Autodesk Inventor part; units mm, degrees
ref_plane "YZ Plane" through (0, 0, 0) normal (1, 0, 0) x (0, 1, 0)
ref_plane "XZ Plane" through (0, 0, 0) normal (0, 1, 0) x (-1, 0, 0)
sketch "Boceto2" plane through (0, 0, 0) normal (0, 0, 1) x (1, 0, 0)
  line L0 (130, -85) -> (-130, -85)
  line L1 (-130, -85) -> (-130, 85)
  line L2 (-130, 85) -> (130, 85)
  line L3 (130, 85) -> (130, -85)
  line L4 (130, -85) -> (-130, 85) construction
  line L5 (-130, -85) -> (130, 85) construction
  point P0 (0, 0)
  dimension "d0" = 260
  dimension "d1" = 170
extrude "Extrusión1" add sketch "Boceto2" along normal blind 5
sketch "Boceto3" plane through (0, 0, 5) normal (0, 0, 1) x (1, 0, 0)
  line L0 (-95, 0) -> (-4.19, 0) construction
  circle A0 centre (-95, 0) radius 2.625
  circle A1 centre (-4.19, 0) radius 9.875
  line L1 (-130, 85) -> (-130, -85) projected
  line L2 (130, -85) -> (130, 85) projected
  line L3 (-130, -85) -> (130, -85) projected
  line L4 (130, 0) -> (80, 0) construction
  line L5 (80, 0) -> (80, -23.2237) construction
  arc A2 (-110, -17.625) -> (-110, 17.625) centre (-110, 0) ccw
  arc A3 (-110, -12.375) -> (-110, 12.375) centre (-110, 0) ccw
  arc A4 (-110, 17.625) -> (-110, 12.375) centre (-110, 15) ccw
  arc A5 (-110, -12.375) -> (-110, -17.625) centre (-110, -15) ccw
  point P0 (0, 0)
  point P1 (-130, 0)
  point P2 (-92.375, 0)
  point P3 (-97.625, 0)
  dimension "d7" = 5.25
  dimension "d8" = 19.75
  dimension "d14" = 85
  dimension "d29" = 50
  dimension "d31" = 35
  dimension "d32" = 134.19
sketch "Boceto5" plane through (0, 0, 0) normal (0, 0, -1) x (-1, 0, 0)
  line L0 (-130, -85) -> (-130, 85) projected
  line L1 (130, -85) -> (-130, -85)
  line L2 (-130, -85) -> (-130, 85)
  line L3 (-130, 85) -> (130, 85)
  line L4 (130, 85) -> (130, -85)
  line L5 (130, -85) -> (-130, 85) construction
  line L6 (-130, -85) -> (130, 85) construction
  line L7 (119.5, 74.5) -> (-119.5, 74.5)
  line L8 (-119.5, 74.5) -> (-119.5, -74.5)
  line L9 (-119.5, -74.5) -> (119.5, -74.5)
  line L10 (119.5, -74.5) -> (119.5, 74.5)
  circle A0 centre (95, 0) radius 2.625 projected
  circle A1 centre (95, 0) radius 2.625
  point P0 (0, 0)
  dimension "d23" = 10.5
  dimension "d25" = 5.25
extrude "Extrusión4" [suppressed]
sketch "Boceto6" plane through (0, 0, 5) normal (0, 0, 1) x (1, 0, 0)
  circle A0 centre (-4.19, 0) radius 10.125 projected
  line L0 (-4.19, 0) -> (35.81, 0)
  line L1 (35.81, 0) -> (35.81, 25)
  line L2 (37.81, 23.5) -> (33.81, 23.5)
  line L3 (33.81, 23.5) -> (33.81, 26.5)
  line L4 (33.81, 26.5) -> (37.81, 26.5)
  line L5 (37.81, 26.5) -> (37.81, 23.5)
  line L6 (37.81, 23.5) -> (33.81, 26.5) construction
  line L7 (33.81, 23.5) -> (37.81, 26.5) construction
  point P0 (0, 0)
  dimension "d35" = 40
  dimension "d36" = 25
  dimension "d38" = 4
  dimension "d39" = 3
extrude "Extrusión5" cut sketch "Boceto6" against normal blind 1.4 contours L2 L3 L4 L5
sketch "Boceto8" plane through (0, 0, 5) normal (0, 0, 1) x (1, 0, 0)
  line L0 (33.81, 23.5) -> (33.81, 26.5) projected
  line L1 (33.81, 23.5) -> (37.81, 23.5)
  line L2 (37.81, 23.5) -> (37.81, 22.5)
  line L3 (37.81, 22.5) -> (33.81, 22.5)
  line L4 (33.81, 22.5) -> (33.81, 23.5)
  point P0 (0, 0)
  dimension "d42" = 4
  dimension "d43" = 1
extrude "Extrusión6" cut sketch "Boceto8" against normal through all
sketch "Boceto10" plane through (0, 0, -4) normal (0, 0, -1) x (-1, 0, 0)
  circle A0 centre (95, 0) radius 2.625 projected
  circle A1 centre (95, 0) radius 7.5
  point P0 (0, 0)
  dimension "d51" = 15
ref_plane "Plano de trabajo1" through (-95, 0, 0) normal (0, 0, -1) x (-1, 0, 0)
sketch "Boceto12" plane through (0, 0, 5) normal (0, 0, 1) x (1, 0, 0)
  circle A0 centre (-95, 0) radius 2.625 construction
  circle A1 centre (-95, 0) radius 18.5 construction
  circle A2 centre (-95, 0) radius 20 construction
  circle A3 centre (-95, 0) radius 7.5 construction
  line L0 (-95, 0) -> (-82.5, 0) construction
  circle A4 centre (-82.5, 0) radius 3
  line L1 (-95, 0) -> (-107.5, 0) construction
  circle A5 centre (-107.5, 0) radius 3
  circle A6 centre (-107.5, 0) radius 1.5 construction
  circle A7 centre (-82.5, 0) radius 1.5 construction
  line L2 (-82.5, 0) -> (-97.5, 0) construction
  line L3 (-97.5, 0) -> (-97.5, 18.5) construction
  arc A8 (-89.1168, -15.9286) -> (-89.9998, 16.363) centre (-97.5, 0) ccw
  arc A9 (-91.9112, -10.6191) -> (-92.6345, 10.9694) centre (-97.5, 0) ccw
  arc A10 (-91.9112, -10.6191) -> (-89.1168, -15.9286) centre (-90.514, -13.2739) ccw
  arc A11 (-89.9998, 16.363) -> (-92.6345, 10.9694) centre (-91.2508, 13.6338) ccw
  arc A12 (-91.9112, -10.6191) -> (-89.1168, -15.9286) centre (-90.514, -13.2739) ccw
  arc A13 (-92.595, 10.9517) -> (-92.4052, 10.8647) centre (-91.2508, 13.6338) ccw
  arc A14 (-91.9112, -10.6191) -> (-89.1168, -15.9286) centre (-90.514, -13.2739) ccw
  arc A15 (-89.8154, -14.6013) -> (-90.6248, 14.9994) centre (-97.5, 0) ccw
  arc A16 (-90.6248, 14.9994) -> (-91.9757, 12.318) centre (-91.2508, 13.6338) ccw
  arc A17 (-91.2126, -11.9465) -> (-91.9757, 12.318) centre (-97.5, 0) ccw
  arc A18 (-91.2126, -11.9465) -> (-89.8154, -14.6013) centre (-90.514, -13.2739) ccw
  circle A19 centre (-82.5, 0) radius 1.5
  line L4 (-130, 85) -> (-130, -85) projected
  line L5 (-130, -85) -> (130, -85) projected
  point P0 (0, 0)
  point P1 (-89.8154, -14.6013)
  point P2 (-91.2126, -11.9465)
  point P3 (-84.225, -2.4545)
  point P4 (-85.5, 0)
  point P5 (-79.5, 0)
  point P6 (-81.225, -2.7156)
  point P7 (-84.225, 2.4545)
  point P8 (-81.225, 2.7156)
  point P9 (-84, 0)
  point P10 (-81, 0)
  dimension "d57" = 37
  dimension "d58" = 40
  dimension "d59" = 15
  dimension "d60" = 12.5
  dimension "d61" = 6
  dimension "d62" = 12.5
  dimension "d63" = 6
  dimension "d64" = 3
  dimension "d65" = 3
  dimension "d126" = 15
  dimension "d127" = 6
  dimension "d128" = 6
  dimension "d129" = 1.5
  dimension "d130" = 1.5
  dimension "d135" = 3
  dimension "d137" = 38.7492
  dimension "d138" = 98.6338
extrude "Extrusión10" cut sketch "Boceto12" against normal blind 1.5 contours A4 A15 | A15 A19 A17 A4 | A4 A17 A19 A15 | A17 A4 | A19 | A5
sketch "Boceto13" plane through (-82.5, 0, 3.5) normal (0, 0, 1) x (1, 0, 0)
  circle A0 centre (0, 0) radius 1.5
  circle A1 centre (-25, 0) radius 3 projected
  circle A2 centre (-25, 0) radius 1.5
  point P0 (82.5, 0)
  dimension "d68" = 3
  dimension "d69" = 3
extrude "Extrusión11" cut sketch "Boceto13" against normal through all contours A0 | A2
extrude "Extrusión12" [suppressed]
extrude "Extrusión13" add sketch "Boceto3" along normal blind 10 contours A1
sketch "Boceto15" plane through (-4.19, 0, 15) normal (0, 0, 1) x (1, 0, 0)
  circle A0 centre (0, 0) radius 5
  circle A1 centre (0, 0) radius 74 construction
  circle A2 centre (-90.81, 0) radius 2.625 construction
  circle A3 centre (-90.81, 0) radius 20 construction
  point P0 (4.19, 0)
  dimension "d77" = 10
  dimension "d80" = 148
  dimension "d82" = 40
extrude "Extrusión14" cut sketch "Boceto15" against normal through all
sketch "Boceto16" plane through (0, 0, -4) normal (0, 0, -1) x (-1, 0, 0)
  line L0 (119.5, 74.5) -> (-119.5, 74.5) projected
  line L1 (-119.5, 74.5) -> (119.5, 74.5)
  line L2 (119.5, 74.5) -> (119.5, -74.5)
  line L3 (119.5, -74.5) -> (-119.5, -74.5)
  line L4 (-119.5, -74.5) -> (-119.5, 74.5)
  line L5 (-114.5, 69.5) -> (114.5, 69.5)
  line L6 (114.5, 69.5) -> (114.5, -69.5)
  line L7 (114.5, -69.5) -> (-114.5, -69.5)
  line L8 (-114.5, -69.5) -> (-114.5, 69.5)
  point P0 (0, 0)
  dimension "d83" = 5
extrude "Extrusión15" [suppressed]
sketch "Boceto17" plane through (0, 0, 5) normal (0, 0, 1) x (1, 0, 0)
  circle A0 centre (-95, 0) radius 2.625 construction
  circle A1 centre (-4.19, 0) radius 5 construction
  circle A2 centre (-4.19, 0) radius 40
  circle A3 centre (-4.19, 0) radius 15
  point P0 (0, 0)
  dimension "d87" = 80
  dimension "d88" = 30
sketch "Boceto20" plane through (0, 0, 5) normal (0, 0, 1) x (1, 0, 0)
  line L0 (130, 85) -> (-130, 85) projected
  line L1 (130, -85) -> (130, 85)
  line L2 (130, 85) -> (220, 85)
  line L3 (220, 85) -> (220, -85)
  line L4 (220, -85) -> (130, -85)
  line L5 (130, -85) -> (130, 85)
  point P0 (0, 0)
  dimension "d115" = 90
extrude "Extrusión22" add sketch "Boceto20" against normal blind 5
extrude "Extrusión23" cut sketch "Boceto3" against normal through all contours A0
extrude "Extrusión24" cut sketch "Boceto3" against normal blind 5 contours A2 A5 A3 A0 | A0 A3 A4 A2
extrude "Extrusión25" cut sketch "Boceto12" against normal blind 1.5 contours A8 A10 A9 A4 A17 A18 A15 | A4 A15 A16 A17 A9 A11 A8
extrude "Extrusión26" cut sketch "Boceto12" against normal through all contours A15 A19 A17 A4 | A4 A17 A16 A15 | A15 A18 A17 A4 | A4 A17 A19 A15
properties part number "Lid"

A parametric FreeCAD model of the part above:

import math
import FreeCAD as App
import Part
import Sketcher
from FreeCAD import Vector
Q = App.Units.Quantity


def add_polygon(sketch, points):
    """Adds a closed chain of lines whose ends are joined by coincident constraints."""
    first, n = sketch.GeometryCount, len(points)
    for a, b in zip(points, points[1:] + points[:1]):
        sketch.addGeometry(Part.LineSegment(App.Vector(*a, 0), App.Vector(*b, 0)), False)
    for i in range(n):
        sketch.addConstraint(Sketcher.Constraint("Coincident", first + i, 2, first + (i + 1) % n, 1))

doc = App.newDocument("Part")
params = doc.addObject("Spreadsheet::Sheet", "Params")
for row, (alias, value) in enumerate([
    ("sketch1_width", "260 mm"),
    ("sketch1_height", "170 mm"),
    ("pad1_length", "5 mm"),
    ("sketch2_width", "4 mm"),
    ("sketch2_height", "3 mm"),
    ("pocket1_length", "1.4 mm"),
    ("sketch3_width", "4 mm"),
    ("sketch3_height", "1 mm"),
    ("sketch4_diameter", "6 mm"),
    ("pocket3_length", "1.5 mm"),
    ("sketch5_diameter", "3 mm"),
    ("sketch6_diameter", "19.75 mm"),
    ("pad2_length", "10 mm"),
    ("sketch7_diameter", "10 mm"),
    ("sketch8_width", "90 mm"),
    ("sketch8_height", "170 mm"),
    ("pad3_length", "5 mm"),
    ("sketch9_diameter", "5.25 mm"),
    ("pocket7_length", "5 mm"),
    ("sketch11_radius", "3 mm"),
    ("sketch11_radius2", "1.5 mm"),
    ("sketch11_radius3", "18 mm"),
    ("pocket8_length", "1.5 mm"),
    ("sketch12_radius", "1.5 mm"),
    ("pocket9_length", "6.0024 mm"),
], start=1):
    params.set(f"A{row}", alias)
    params.set(f"B{row}", "=" + value)
    params.setAlias(f"B{row}", alias)

body = doc.addObject("PartDesign::Body", "Body")

sketch1 = body.newObject("Sketcher::SketchObject", "Sketch")
sketch1.AttachmentSupport = (doc.getObject("XY_Plane"), [""])
sketch1.MapMode = "FlatFace"
add_polygon(sketch1, [(-130, -85), (130, -85), (130, 85), (-130, 85)])
sketch1.addConstraint([
    Sketcher.Constraint("Horizontal", 0),
    Sketcher.Constraint("Vertical", 1),
    Sketcher.Constraint("Horizontal", 2),
    Sketcher.Constraint("Vertical", 3),
    Sketcher.Constraint("Symmetric", 0, 2, 2, 2, -1, 1),
    Sketcher.Constraint("DistanceX", 0, 1, 0, 2, Q("260 mm")),
    Sketcher.Constraint("DistanceY", 1, 1, 1, 2, Q("170 mm")),
])
sketch1.setExpression("Constraints[9]", "Params.sketch1_width")
sketch1.setExpression("Constraints[10]", "Params.sketch1_height")
pad1 = body.newObject("PartDesign::Pad", "Pad")
pad1.Profile = sketch1
pad1.setExpression("Length", "Params.pad1_length")

sketch2 = body.newObject("Sketcher::SketchObject", "Sketch001")
sketch2.AttachmentSupport = (doc.getObject("XY_Plane"), [""])
sketch2.MapMode = "FlatFace"
sketch2.AttachmentOffset = App.Placement(Vector(0, 0, 5), App.Rotation())
add_polygon(sketch2, [(33.8, 23.5), (37.8, 23.5), (37.8, 26.5), (33.8, 26.5)])
sketch2.addConstraint([
    Sketcher.Constraint("Horizontal", 0),
    Sketcher.Constraint("Vertical", 1),
    Sketcher.Constraint("Horizontal", 2),
    Sketcher.Constraint("Vertical", 3),
    Sketcher.Constraint("DistanceX", 0, 1, 0, 2, Q("4 mm")),
    Sketcher.Constraint("DistanceY", 1, 1, 1, 2, Q("3 mm")),
    Sketcher.Constraint("DistanceY", -1, 1, 0, 2, Q("23.5 mm")),
    Sketcher.Constraint("DistanceX", -1, 1, 0, 2, Q("37.81 mm")),
])
sketch2.setExpression("Constraints[8]", "Params.sketch2_width")
sketch2.setExpression("Constraints[9]", "Params.sketch2_height")
pocket1 = body.newObject("PartDesign::Pocket", "Pocket")
pocket1.Profile = sketch2
pocket1.setExpression("Length", "Params.pocket1_length")

sketch3 = body.newObject("Sketcher::SketchObject", "Sketch002")
sketch3.AttachmentSupport = (doc.getObject("XY_Plane"), [""])
sketch3.MapMode = "FlatFace"
sketch3.AttachmentOffset = App.Placement(Vector(0, 0, 5), App.Rotation())
add_polygon(sketch3, [(37.8, 23.5), (33.8, 23.5), (33.8, 22.5), (37.8, 22.5)])
sketch3.addConstraint([
    Sketcher.Constraint("Horizontal", 0),
    Sketcher.Constraint("Vertical", 1),
    Sketcher.Constraint("Horizontal", 2),
    Sketcher.Constraint("Vertical", 3),
    Sketcher.Constraint("DistanceX", 0, 2, 0, 1, Q("4 mm")),
    Sketcher.Constraint("DistanceY", 1, 2, 1, 1, Q("1 mm")),
    Sketcher.Constraint("DistanceY", -1, 1, 0, 2, Q("23.5 mm")),
    Sketcher.Constraint("DistanceX", -1, 1, 0, 2, Q("33.81 mm")),
])
sketch3.setExpression("Constraints[8]", "Params.sketch3_width")
sketch3.setExpression("Constraints[9]", "Params.sketch3_height")
pocket2 = body.newObject("PartDesign::Pocket", "Pocket001")
pocket2.Profile = sketch3
pocket2.Type = "ThroughAll"

sketch4 = body.newObject("Sketcher::SketchObject", "Sketch003")
sketch4.AttachmentSupport = (doc.getObject("XY_Plane"), [""])
sketch4.MapMode = "FlatFace"
sketch4.AttachmentOffset = App.Placement(Vector(0, 0, 5), App.Rotation())
sketch4.addGeometry([
    Part.Circle(Vector(-82.5, 0, 0), Vector(0, 0, 1), 3),
    Part.Circle(Vector(-107.5, 0, 0), Vector(0, 0, 1), 3),
], False)
sketch4.addConstraint([
    Sketcher.Constraint("Equal", 0, 1),
    Sketcher.Constraint("PointOnObject", 0, 3, -1),
    Sketcher.Constraint("PointOnObject", 1, 3, -1),
    Sketcher.Constraint("Diameter", 0, Q("6 mm")),
    Sketcher.Constraint("DistanceX", 1, 3, 0, 3, Q("25 mm")),
    Sketcher.Constraint("DistanceX", 0, 3, -1, 1, Q("82.5 mm")),
])
sketch4.setExpression("Constraints[3]", "Params.sketch4_diameter")
pocket3 = body.newObject("PartDesign::Pocket", "Pocket002")
pocket3.Profile = sketch4
pocket3.setExpression("Length", "Params.pocket3_length")

sketch5 = body.newObject("Sketcher::SketchObject", "Sketch004")
sketch5.AttachmentSupport = (doc.getObject("XY_Plane"), [""])
sketch5.MapMode = "FlatFace"
sketch5.AttachmentOffset = App.Placement(Vector(0, 0, 3.5), App.Rotation())
sketch5.addGeometry([
    Part.Circle(Vector(-82.5, 0, 0), Vector(0, 0, 1), 1.5),
    Part.Circle(Vector(-107.5, 0, 0), Vector(0, 0, 1), 1.5),
], False)
sketch5.addConstraint([
    Sketcher.Constraint("Equal", 0, 1),
    Sketcher.Constraint("PointOnObject", 0, 3, -1),
    Sketcher.Constraint("PointOnObject", 1, 3, -1),
    Sketcher.Constraint("Diameter", 0, Q("3 mm")),
    Sketcher.Constraint("DistanceX", 1, 3, 0, 3, Q("25 mm")),
    Sketcher.Constraint("DistanceX", 0, 3, -1, 1, Q("82.5 mm")),
])
sketch5.setExpression("Constraints[3]", "Params.sketch5_diameter")
pocket4 = body.newObject("PartDesign::Pocket", "Pocket003")
pocket4.Profile = sketch5
pocket4.Type = "ThroughAll"

sketch6 = body.newObject("Sketcher::SketchObject", "Sketch005")
sketch6.AttachmentSupport = (doc.getObject("XY_Plane"), [""])
sketch6.MapMode = "FlatFace"
sketch6.AttachmentOffset = App.Placement(Vector(0, 0, 5), App.Rotation())
sketch6.addGeometry(Part.Circle(Vector(-4, 0, 0), Vector(0, 0, 1), 10), False)
sketch6.addConstraint([
    Sketcher.Constraint("PointOnObject", 0, 3, -1),
    Sketcher.Constraint("Diameter", 0, Q("19.75 mm")),
    Sketcher.Constraint("DistanceX", 0, 3, -1, 1, Q("4.19 mm")),
])
sketch6.setExpression("Constraints[1]", "Params.sketch6_diameter")
pad2 = body.newObject("PartDesign::Pad", "Pad001")
pad2.Profile = sketch6
pad2.setExpression("Length", "Params.pad2_length")

sketch7 = body.newObject("Sketcher::SketchObject", "Sketch006")
sketch7.AttachmentSupport = (doc.getObject("XY_Plane"), [""])
sketch7.MapMode = "FlatFace"
sketch7.AttachmentOffset = App.Placement(Vector(0, 0, 15), App.Rotation())
sketch7.addGeometry(Part.Circle(Vector(-4, 0, 0), Vector(0, 0, 1), 5), False)
sketch7.addConstraint([
    Sketcher.Constraint("PointOnObject", 0, 3, -1),
    Sketcher.Constraint("Diameter", 0, Q("10 mm")),
    Sketcher.Constraint("DistanceX", 0, 3, -1, 1, Q("4.19 mm")),
])
sketch7.setExpression("Constraints[1]", "Params.sketch7_diameter")
pocket5 = body.newObject("PartDesign::Pocket", "Pocket004")
pocket5.Profile = sketch7
pocket5.Type = "ThroughAll"

sketch8 = body.newObject("Sketcher::SketchObject", "Sketch007")
sketch8.AttachmentSupport = (doc.getObject("XY_Plane"), [""])
sketch8.MapMode = "FlatFace"
sketch8.AttachmentOffset = App.Placement(Vector(0, 0, 5), App.Rotation())
add_polygon(sketch8, [(130, 85), (130, -85), (220, -85), (220, 85)])
sketch8.addConstraint([
    Sketcher.Constraint("Vertical", 0),
    Sketcher.Constraint("Horizontal", 1),
    Sketcher.Constraint("Vertical", 2),
    Sketcher.Constraint("Horizontal", 3),
    Sketcher.Constraint("DistanceX", 1, 1, 1, 2, Q("90 mm")),
    Sketcher.Constraint("DistanceY", 0, 2, 0, 1, Q("170 mm")),
    Sketcher.Constraint("DistanceX", -1, 1, 0, 2, Q("130 mm")),
    Sketcher.Constraint("DistanceY", 0, 2, -1, 1, Q("85 mm")),
])
sketch8.setExpression("Constraints[8]", "Params.sketch8_width")
sketch8.setExpression("Constraints[9]", "Params.sketch8_height")
pad3 = body.newObject("PartDesign::Pad", "Pad002")
pad3.Profile = sketch8
pad3.setExpression("Length", "Params.pad3_length")
pad3.Reversed = True

sketch9 = body.newObject("Sketcher::SketchObject", "Sketch008")
sketch9.AttachmentSupport = (doc.getObject("XY_Plane"), [""])
sketch9.MapMode = "FlatFace"
sketch9.AttachmentOffset = App.Placement(Vector(0, 0, 5), App.Rotation())
sketch9.addGeometry(Part.Circle(Vector(-95, 0, 0), Vector(0, 0, 1), 2.6), False)
sketch9.addConstraint([
    Sketcher.Constraint("PointOnObject", 0, 3, -1),
    Sketcher.Constraint("Diameter", 0, Q("5.25 mm")),
    Sketcher.Constraint("DistanceX", 0, 3, -1, 1, Q("95 mm")),
])
sketch9.setExpression("Constraints[1]", "Params.sketch9_diameter")
pocket6 = body.newObject("PartDesign::Pocket", "Pocket005")
pocket6.Profile = sketch9
pocket6.Type = "ThroughAll"

sketch10 = body.newObject("Sketcher::SketchObject", "Sketch009")
sketch10.AttachmentSupport = (doc.getObject("XY_Plane"), [""])
sketch10.MapMode = "FlatFace"
sketch10.AttachmentOffset = App.Placement(Vector(0, 0, 5), App.Rotation())
sketch10.addGeometry([
    Part.ArcOfCircle(Part.Circle(Vector(-110, 0, 0), Vector(0, 0, 1), 17.6), math.radians(-90), math.radians(0)),
    Part.ArcOfCircle(Part.Circle(Vector(-95, 0, 0), Vector(0, 0, 1), 2.6), math.radians(-180), math.radians(0)),
    Part.ArcOfCircle(Part.Circle(Vector(-110, 0, 0), Vector(0, 0, 1), 12.4), math.radians(-90), math.radians(0)),
    Part.ArcOfCircle(Part.Circle(Vector(-110, -15, 0), Vector(0, 0, 1), 2.6), math.radians(90), math.radians(270)),
    Part.ArcOfCircle(Part.Circle(Vector(-95, 0, 0), Vector(0, 0, 1), 2.6), math.radians(0), math.radians(180)),
    Part.ArcOfCircle(Part.Circle(Vector(-110, 0, 0), Vector(0, 0, 1), 17.6), math.radians(0), math.radians(90)),
    Part.ArcOfCircle(Part.Circle(Vector(-110, 15, 0), Vector(0, 0, 1), 2.6), math.radians(90), math.radians(270)),
    Part.ArcOfCircle(Part.Circle(Vector(-110, 0, 0), Vector(0, 0, 1), 12.4), math.radians(0), math.radians(90)),
], False)
sketch10.addConstraint([
    Sketcher.Constraint("Tangent", 0, 2, 1, 2),
    Sketcher.Constraint("Tangent", 1, 1, 2, 2),
    Sketcher.Constraint("Tangent", 2, 1, 3, 1),
    Sketcher.Constraint("Tangent", 3, 2, 0, 1),
    Sketcher.Constraint("Tangent", 4, 1, 5, 1),
    Sketcher.Constraint("Tangent", 5, 2, 6, 1),
    Sketcher.Constraint("Tangent", 6, 2, 7, 2),
    Sketcher.Constraint("Tangent", 7, 1, 4, 2),
    Sketcher.Constraint("Coincident", 2, 3, 0, 3),
    Sketcher.Constraint("Coincident", 4, 3, 1, 3),
    Sketcher.Constraint("Coincident", 5, 3, 0, 3),
    Sketcher.Constraint("Coincident", 7, 3, 0, 3),
    Sketcher.Constraint("Equal", 3, 4),
    Sketcher.Constraint("Symmetric", 3, 3, 6, 3, -1),
    Sketcher.Constraint("PointOnObject", 1, 3, -1),
    Sketcher.Constraint("Vertical", 2, 3, 3, 3),
    Sketcher.Constraint("Radius", 1, Q("2.625 mm")),
    Sketcher.Constraint("DistanceX", 0, 3, -1, 1, Q("110 mm")),
    Sketcher.Constraint("DistanceX", 1, 3, -1, 1, Q("95 mm")),
])
pocket7 = body.newObject("PartDesign::Pocket", "Pocket006")
pocket7.Profile = sketch10
pocket7.setExpression("Length", "Params.pocket7_length")

sketch11 = body.newObject("Sketcher::SketchObject", "Sketch010")
sketch11.AttachmentSupport = (doc.getObject("XY_Plane"), [""])
sketch11.MapMode = "FlatFace"
sketch11.AttachmentOffset = App.Placement(Vector(0, 0, 5), App.Rotation())
sketch11.addGeometry([
    Part.ArcOfCircle(Part.Circle(Vector(-97.5, 0, 0), Vector(0, 0, 1), 18), math.radians(-62), math.radians(0)),
    Part.ArcOfCircle(Part.Circle(Vector(-82.5, 0, 0), Vector(0, 0, 1), 3), math.radians(-65), math.radians(0)),
    Part.ArcOfCircle(Part.Circle(Vector(-97.5, 0, 0), Vector(0, 0, 1), 16.5), math.radians(-62), math.radians(-9)),
    Part.ArcOfCircle(Part.Circle(Vector(-90.514, -13.274, 0), Vector(0, 0, 1), 1.5), math.radians(118), math.radians(298)),
    Part.ArcOfCircle(Part.Circle(Vector(-97.5, 0, 0), Vector(0, 0, 1), 13.5), math.radians(-62), math.radians(-10)),
    Part.ArcOfCircle(Part.Circle(Vector(-82.5, 0, 0), Vector(0, 0, 1), 3), math.radians(180), math.radians(235)),
    Part.ArcOfCircle(Part.Circle(Vector(-97.5, 0, 0), Vector(0, 0, 1), 12), math.radians(-62), math.radians(0)),
    Part.ArcOfCircle(Part.Circle(Vector(-90.514, -13.274, 0), Vector(0, 0, 1), 3), math.radians(118), math.radians(298)),
    Part.ArcOfCircle(Part.Circle(Vector(-82.5, 0, 0), Vector(0, 0, 1), 3), math.radians(0), math.radians(65)),
    Part.ArcOfCircle(Part.Circle(Vector(-97.5, 0, 0), Vector(0, 0, 1), 18), math.radians(0), math.radians(65)),
    Part.ArcOfCircle(Part.Circle(Vector(-91.251, 13.634, 0), Vector(0, 0, 1), 3.002), math.radians(65), math.radians(243)),
    Part.ArcOfCircle(Part.Circle(Vector(-97.5, 0, 0), Vector(0, 0, 1), 12), math.radians(65.87), math.radians(66.08)),
    Part.ArcOfCircle(Part.Circle(Vector(-91.25, 13.636, 0), Vector(0, 0, 1), 3.003), math.radians(-116.62), math.radians(-112.63)),
    Part.ArcOfCircle(Part.Circle(Vector(-97.5, 0, 0), Vector(0, 0, 1), 12), math.radians(0), math.radians(65)),
    Part.ArcOfCircle(Part.Circle(Vector(-82.5, 0, 0), Vector(0, 0, 1), 3), math.radians(125), math.radians(180)),
    Part.ArcOfCircle(Part.Circle(Vector(-97.5, 0, 0), Vector(0, 0, 1), 13.5), math.radians(10), math.radians(66)),
    Part.ArcOfCircle(Part.Circle(Vector(-91.251, 13.634, 0), Vector(0, 0, 1), 1.502), math.radians(65), math.radians(241)),
    Part.ArcOfCircle(Part.Circle(Vector(-97.5, 0, 0), Vector(0, 0, 1), 16.5), math.radians(9), math.radians(65)),
], False)
sketch11.addConstraint([
    Sketcher.Constraint("Tangent", 0, 2, 1, 2),
    Sketcher.Constraint("Coincident", 1, 1, 2, 2),
    Sketcher.Constraint("Tangent", 2, 1, 3, 2),
    Sketcher.Constraint("Tangent", 3, 1, 4, 1),
    Sketcher.Constraint("Coincident", 4, 2, 5, 2),
    Sketcher.Constraint("Tangent", 5, 1, 6, 2),
    Sketcher.Constraint("Tangent", 6, 1, 7, 1),
    Sketcher.Constraint("Tangent", 7, 2, 0, 1),
    Sketcher.Constraint("Tangent", 8, 1, 9, 1),
    Sketcher.Constraint("Tangent", 9, 2, 10, 1),
    Sketcher.Constraint("Coincident", 10, 2, 11, 2),
    Sketcher.Constraint("Coincident", 11, 1, 12, 1),
    Sketcher.Constraint("Coincident", 12, 2, 13, 2),
    Sketcher.Constraint("Tangent", 13, 1, 14, 2),
    Sketcher.Constraint("Coincident", 14, 1, 15, 1),
    Sketcher.Constraint("Coincident", 15, 2, 16, 2),
    Sketcher.Constraint("Tangent", 16, 1, 17, 2),
    Sketcher.Constraint("Coincident", 17, 1, 8, 2),
    Sketcher.Constraint("Coincident", 2, 3, 0, 3),
    Sketcher.Constraint("Coincident", 4, 3, 0, 3),
    Sketcher.Constraint("Coincident", 5, 3, 1, 3),
    Sketcher.Constraint("Coincident", 6, 3, 0, 3),
    Sketcher.Constraint("Coincident", 7, 3, 3, 3),
    Sketcher.Constraint("Coincident", 8, 3, 1, 3),
    Sketcher.Constraint("Coincident", 9, 3, 0, 3),
    Sketcher.Constraint("Coincident", 11, 3, 0, 3),
    Sketcher.Constraint("Coincident", 13, 3, 0, 3),
    Sketcher.Constraint("Coincident", 14, 3, 1, 3),
    Sketcher.Constraint("Coincident", 15, 3, 0, 3),
    Sketcher.Constraint("Coincident", 16, 3, 10, 3),
    Sketcher.Constraint("Coincident", 17, 3, 0, 3),
    Sketcher.Constraint("Equal", 1, 5),
    Sketcher.Constraint("Equal", 7, 8),
    Sketcher.Constraint("Equal", 6, 11),
    Sketcher.Constraint("Equal", 11, 13),
    Sketcher.Constraint("Equal", 4, 15),
    Sketcher.Constraint("Equal", 2, 17),
    Sketcher.Constraint("Symmetric", 4, 2, 14, 1, -1),
    Sketcher.Constraint("Radius", 1, Q("3 mm")),
    Sketcher.Constraint("Radius", 3, Q("1.5 mm")),
    Sketcher.Constraint("Radius", 0, Q("18 mm")),
    Sketcher.Constraint("DistanceX", 0, 3, -1, 1, Q("97.5 mm")),
    Sketcher.Constraint("Radius", 10, Q("3.0023 mm")),
    Sketcher.Constraint("Radius", 12, Q("3.0029 mm")),
    Sketcher.Constraint("DistanceX", 3, 3, -1, 1, Q("90.514 mm")),
    Sketcher.Constraint("DistanceY", -1, 1, 9, 2, Q("16.363 mm")),
    Sketcher.Constraint("DistanceX", 11, 1, -1, 1, Q("92.595 mm")),
    Sketcher.Constraint("DistanceX", 10, 2, 12, 3, Q("1.385 mm")),
])
sketch11.setExpression("Constraints[38]", "Params.sketch11_radius")
sketch11.setExpression("Constraints[39]", "Params.sketch11_radius2")
sketch11.setExpression("Constraints[40]", "Params.sketch11_radius3")
pocket8 = body.newObject("PartDesign::Pocket", "Pocket007")
pocket8.Profile = sketch11
pocket8.setExpression("Length", "Params.pocket8_length")

sketch12 = body.newObject("Sketcher::SketchObject", "Sketch011")
sketch12.AttachmentSupport = (doc.getObject("XY_Plane"), [""])
sketch12.MapMode = "FlatFace"
sketch12.AttachmentOffset = App.Placement(Vector(0, 0, 5), App.Rotation())
sketch12.addGeometry([
    Part.ArcOfCircle(Part.Circle(Vector(-97.5, 0, 0), Vector(0, 0, 1), 16.5), math.radians(0), math.radians(65)),
    Part.ArcOfCircle(Part.Circle(Vector(-91.3, 13.6, 0), Vector(0, 0, 1), 1.5), math.radians(65), math.radians(241)),
    Part.ArcOfCircle(Part.Circle(Vector(-97.5, 0, 0), Vector(0, 0, 1), 13.5), math.radians(0), math.radians(66)),
    Part.ArcOfCircle(Part.Circle(Vector(-82.5, 0, 0), Vector(0, 0, 1), 1.5), math.radians(0), math.radians(180)),
    Part.ArcOfCircle(Part.Circle(Vector(-97.5, 0, 0), Vector(0, 0, 1), 16.5), math.radians(-62), math.radians(0)),
    Part.ArcOfCircle(Part.Circle(Vector(-82.5, 0, 0), Vector(0, 0, 1), 1.5), math.radians(180), math.radians(360)),
    Part.ArcOfCircle(Part.Circle(Vector(-97.5, 0, 0), Vector(0, 0, 1), 13.5), math.radians(-62), math.radians(0)),
    Part.ArcOfCircle(Part.Circle(Vector(-90.5, -13.3, 0), Vector(0, 0, 1), 1.5), math.radians(118), math.radians(298)),
], False)
sketch12.addConstraint([
    Sketcher.Constraint("Tangent", 0, 2, 1, 1),
    Sketcher.Constraint("Coincident", 1, 2, 2, 2),
    Sketcher.Constraint("Tangent", 2, 1, 3, 2),
    Sketcher.Constraint("Tangent", 3, 1, 0, 1),
    Sketcher.Constraint("Tangent", 4, 2, 5, 2),
    Sketcher.Constraint("Tangent", 5, 1, 6, 2),
    Sketcher.Constraint("Tangent", 6, 1, 7, 1),
    Sketcher.Constraint("Tangent", 7, 2, 4, 1),
    Sketcher.Constraint("Coincident", 2, 3, 0, 3),
    Sketcher.Constraint("Coincident", 4, 3, 0, 3),
    Sketcher.Constraint("Coincident", 5, 3, 3, 3),
    Sketcher.Constraint("Coincident", 6, 3, 0, 3),
    Sketcher.Constraint("Equal", 0, 4),
    Sketcher.Constraint("PointOnObject", 0, 3, -1),
    Sketcher.Constraint("PointOnObject", 3, 3, -1),
    Sketcher.Constraint("Radius", 3, Q("1.5 mm")),
    Sketcher.Constraint("DistanceX", 0, 3, 3, 3, Q("15 mm")),
    Sketcher.Constraint("DistanceX", 2, 1, -1, 1, Q("84 mm")),
    Sketcher.Constraint("DistanceY", -1, 1, 0, 2, Q("14.9994 mm")),
    Sketcher.Constraint("Radius", 1, Q("1.5022 mm")),
    Sketcher.Constraint("DistanceX", 7, 3, -1, 1, Q("90.514 mm")),
])
sketch12.setExpression("Constraints[15]", "Params.sketch12_radius")
pocket9 = body.newObject("PartDesign::Pocket", "Pocket008")
pocket9.Profile = sketch12
pocket9.setExpression("Length", "Params.pocket9_length")

doc.recompute()
